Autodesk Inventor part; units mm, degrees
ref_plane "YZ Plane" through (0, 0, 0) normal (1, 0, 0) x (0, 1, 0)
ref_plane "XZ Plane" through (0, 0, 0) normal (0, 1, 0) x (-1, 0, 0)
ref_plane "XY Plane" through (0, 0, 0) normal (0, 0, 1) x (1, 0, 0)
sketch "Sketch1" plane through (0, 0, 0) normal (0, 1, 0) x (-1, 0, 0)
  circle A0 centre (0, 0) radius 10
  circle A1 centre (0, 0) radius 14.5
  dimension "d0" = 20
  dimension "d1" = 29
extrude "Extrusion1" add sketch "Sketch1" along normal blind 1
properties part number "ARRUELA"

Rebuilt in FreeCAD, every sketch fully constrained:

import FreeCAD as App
import Part
import Sketcher
Q = App.Units.Quantity

doc = App.newDocument("Part")
body = doc.addObject("PartDesign::Body", "Body")

# Sketch on XZ plane
sketch1 = body.newObject("Sketcher::SketchObject", "Sketch")
sketch1.AttachmentSupport = (doc.getObject("XZ_Plane"), [""])
sketch1.MapMode = "FlatFace"
sketch1.addGeometry(Part.Circle(App.Vector(0, 0, 0), App.Vector(0, 0, 1), 14.5), False)
sketch1.addGeometry(Part.Circle(App.Vector(0, 0, 0), App.Vector(0, 0, 1), 10), False)
sketch1.addConstraint(Sketcher.Constraint("Coincident", 0, 3, -1, 1))
sketch1.addConstraint(Sketcher.Constraint("Coincident", 1, 3, -1, 1))
sketch1.addConstraint(Sketcher.Constraint("Diameter", 0, Q("29 mm")))
sketch1.addConstraint(Sketcher.Constraint("Diameter", 1, Q("20 mm")))
pad1 = body.newObject("PartDesign::Pad", "Pad")
pad1.Profile = sketch1
pad1.Length = 1
pad1.Reversed = True

doc.recompute()
